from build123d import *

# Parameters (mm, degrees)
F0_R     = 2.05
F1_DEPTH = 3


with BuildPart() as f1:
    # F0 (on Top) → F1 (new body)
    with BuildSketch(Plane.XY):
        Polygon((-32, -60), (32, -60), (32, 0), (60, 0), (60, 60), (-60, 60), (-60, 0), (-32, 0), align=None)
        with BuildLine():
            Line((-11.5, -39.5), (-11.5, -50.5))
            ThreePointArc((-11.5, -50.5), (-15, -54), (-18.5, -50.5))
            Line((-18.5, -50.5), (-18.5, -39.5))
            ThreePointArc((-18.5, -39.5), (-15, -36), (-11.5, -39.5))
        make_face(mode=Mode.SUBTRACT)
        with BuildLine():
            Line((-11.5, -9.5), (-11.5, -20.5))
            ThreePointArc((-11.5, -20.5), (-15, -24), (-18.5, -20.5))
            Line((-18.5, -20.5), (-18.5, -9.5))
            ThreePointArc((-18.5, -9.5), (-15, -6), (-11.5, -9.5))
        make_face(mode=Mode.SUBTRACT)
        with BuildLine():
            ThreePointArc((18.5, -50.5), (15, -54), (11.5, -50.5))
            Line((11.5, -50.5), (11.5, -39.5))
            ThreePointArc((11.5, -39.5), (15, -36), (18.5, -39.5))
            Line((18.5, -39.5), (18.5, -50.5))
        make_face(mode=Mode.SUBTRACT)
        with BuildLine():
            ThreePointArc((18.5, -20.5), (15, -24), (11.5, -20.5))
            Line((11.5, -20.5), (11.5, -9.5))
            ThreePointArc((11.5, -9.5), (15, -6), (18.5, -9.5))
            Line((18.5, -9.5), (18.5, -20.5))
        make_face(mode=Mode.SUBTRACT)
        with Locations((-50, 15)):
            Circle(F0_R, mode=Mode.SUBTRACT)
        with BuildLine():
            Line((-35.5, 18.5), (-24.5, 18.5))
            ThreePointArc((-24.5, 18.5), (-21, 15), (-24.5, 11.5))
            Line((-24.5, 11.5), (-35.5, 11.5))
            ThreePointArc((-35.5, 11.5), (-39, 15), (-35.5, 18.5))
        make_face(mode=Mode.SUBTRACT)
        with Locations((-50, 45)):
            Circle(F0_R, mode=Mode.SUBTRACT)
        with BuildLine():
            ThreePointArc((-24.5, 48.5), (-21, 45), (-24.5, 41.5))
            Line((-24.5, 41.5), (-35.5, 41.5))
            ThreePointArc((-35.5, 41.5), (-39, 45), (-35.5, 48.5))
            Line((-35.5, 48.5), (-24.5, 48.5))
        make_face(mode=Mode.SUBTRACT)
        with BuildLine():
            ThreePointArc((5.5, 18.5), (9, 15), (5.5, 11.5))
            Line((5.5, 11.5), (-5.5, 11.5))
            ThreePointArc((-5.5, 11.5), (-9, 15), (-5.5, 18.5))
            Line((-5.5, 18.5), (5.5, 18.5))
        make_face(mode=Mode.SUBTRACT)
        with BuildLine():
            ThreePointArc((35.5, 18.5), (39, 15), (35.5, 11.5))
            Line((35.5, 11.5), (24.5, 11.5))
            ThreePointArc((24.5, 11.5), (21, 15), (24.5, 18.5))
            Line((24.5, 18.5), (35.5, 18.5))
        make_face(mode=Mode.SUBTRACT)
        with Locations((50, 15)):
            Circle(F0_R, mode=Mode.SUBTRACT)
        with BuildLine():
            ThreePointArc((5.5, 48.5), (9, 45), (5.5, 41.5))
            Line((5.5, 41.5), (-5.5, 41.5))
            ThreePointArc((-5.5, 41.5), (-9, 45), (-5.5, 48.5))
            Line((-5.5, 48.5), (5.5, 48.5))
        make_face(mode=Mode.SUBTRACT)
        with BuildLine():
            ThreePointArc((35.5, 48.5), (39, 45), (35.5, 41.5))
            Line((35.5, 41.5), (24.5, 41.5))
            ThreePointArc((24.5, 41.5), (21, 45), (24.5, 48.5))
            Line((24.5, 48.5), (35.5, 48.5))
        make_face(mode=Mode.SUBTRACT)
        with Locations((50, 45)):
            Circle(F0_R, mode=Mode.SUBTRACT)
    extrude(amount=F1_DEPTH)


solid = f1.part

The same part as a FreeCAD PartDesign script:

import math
import FreeCAD as App
import Part
import Sketcher


def add_polygon(sketch, points):
    """Adds a closed chain of lines whose ends are joined by coincident constraints."""
    first, n = sketch.GeometryCount, len(points)
    for a, b in zip(points, points[1:] + points[:1]):
        sketch.addGeometry(Part.LineSegment(App.Vector(*a, 0), App.Vector(*b, 0)), False)
    for i in range(n):
        sketch.addConstraint(Sketcher.Constraint("Coincident", first + i, 2, first + (i + 1) % n, 1))

doc = App.newDocument("Part")
body = doc.addObject("PartDesign::Body", "Body")

sketch1 = body.newObject("Sketcher::SketchObject", "Sketch")
sketch1.AttachmentSupport = (doc.getObject("XY_Plane"), [""])
sketch1.MapMode = "FlatFace"
add_polygon(sketch1, [(-32, -60), (32, -60), (32, 0), (60, 0), (60, 60), (-60, 60), (-60, 0), (-32, 0)])
sketch1.addGeometry(Part.ArcOfCircle(Part.Circle(App.Vector(-15, -39.5, 0), App.Vector(0, 0, 1), 3.5), math.radians(0), math.radians(180)), False)
sketch1.addGeometry(Part.LineSegment(App.Vector(-11.5, -39.5, 0), App.Vector(-11.5, -50.5, 0)), False)
sketch1.addGeometry(Part.ArcOfCircle(Part.Circle(App.Vector(-15, -50.5, 0), App.Vector(0, 0, 1), 3.5), math.radians(180), math.radians(360)), False)
sketch1.addGeometry(Part.LineSegment(App.Vector(-18.5, -50.5, 0), App.Vector(-18.5, -39.5, 0)), False)
sketch1.addGeometry(Part.ArcOfCircle(Part.Circle(App.Vector(-15, -9.5, 0), App.Vector(0, 0, 1), 3.5), math.radians(0), math.radians(180)), False)
sketch1.addGeometry(Part.LineSegment(App.Vector(-11.5, -9.5, 0), App.Vector(-11.5, -20.5, 0)), False)
sketch1.addGeometry(Part.ArcOfCircle(Part.Circle(App.Vector(-15, -20.5, 0), App.Vector(0, 0, 1), 3.5), math.radians(180), math.radians(360)), False)
sketch1.addGeometry(Part.LineSegment(App.Vector(-18.5, -20.5, 0), App.Vector(-18.5, -9.5, 0)), False)
sketch1.addGeometry(Part.LineSegment(App.Vector(18.5, -39.5, 0), App.Vector(18.5, -50.5, 0)), False)
sketch1.addGeometry(Part.ArcOfCircle(Part.Circle(App.Vector(15, -50.5, 0), App.Vector(0, 0, 1), 3.5), math.radians(180), math.radians(360)), False)
sketch1.addGeometry(Part.LineSegment(App.Vector(11.5, -50.5, 0), App.Vector(11.5, -39.5, 0)), False)
sketch1.addGeometry(Part.ArcOfCircle(Part.Circle(App.Vector(15, -39.5, 0), App.Vector(0, 0, 1), 3.5), math.radians(0), math.radians(180)), False)
sketch1.addGeometry(Part.LineSegment(App.Vector(18.5, -9.5, 0), App.Vector(18.5, -20.5, 0)), False)
sketch1.addGeometry(Part.ArcOfCircle(Part.Circle(App.Vector(15, -20.5, 0), App.Vector(0, 0, 1), 3.5), math.radians(180), math.radians(360)), False)
sketch1.addGeometry(Part.LineSegment(App.Vector(11.5, -20.5, 0), App.Vector(11.5, -9.5, 0)), False)
sketch1.addGeometry(Part.ArcOfCircle(Part.Circle(App.Vector(15, -9.5, 0), App.Vector(0, 0, 1), 3.5), math.radians(0), math.radians(180)), False)
sketch1.addGeometry(Part.Circle(App.Vector(-50, 15, 0), App.Vector(0, 0, 1), 2), False)
sketch1.addGeometry(Part.ArcOfCircle(Part.Circle(App.Vector(-35.5, 15, 0), App.Vector(0, 0, 1), 3.5), math.radians(90), math.radians(270)), False)
sketch1.addGeometry(Part.LineSegment(App.Vector(-35.5, 18.5, 0), App.Vector(-24.5, 18.5, 0)), False)
sketch1.addGeometry(Part.ArcOfCircle(Part.Circle(App.Vector(-24.5, 15, 0), App.Vector(0, 0, 1), 3.5), math.radians(-90), math.radians(90)), False)
sketch1.addGeometry(Part.LineSegment(App.Vector(-24.5, 11.5, 0), App.Vector(-35.5, 11.5, 0)), False)
sketch1.addGeometry(Part.Circle(App.Vector(-50, 45, 0), App.Vector(0, 0, 1), 2), False)
sketch1.addGeometry(Part.LineSegment(App.Vector(-35.5, 48.5, 0), App.Vector(-24.5, 48.5, 0)), False)
sketch1.addGeometry(Part.ArcOfCircle(Part.Circle(App.Vector(-24.5, 45, 0), App.Vector(0, 0, 1), 3.5), math.radians(-90), math.radians(90)), False)
sketch1.addGeometry(Part.LineSegment(App.Vector(-24.5, 41.5, 0), App.Vector(-35.5, 41.5, 0)), False)
sketch1.addGeometry(Part.ArcOfCircle(Part.Circle(App.Vector(-35.5, 45, 0), App.Vector(0, 0, 1), 3.5), math.radians(90), math.radians(270)), False)
sketch1.addGeometry(Part.LineSegment(App.Vector(-5.5, 18.5, 0), App.Vector(5.5, 18.5, 0)), False)
sketch1.addGeometry(Part.ArcOfCircle(Part.Circle(App.Vector(5.5, 15, 0), App.Vector(0, 0, 1), 3.5), math.radians(-90), math.radians(90)), False)
sketch1.addGeometry(Part.LineSegment(App.Vector(5.5, 11.5, 0), App.Vector(-5.5, 11.5, 0)), False)
sketch1.addGeometry(Part.ArcOfCircle(Part.Circle(App.Vector(-5.5, 15, 0), App.Vector(0, 0, 1), 3.5), math.radians(90), math.radians(270)), False)
sketch1.addGeometry(Part.LineSegment(App.Vector(24.5, 18.5, 0), App.Vector(35.5, 18.5, 0)), False)
sketch1.addGeometry(Part.ArcOfCircle(Part.Circle(App.Vector(35.5, 15, 0), App.Vector(0, 0, 1), 3.5), math.radians(-90), math.radians(90)), False)
sketch1.addGeometry(Part.LineSegment(App.Vector(35.5, 11.5, 0), App.Vector(24.5, 11.5, 0)), False)
sketch1.addGeometry(Part.ArcOfCircle(Part.Circle(App.Vector(24.5, 15, 0), App.Vector(0, 0, 1), 3.5), math.radians(90), math.radians(270)), False)
sketch1.addGeometry(Part.Circle(App.Vector(50, 15, 0), App.Vector(0, 0, 1), 2), False)
sketch1.addGeometry(Part.LineSegment(App.Vector(-5.5, 48.5, 0), App.Vector(5.5, 48.5, 0)), False)
sketch1.addGeometry(Part.ArcOfCircle(Part.Circle(App.Vector(5.5, 45, 0), App.Vector(0, 0, 1), 3.5), math.radians(-90), math.radians(90)), False)
sketch1.addGeometry(Part.LineSegment(App.Vector(5.5, 41.5, 0), App.Vector(-5.5, 41.5, 0)), False)
sketch1.addGeometry(Part.ArcOfCircle(Part.Circle(App.Vector(-5.5, 45, 0), App.Vector(0, 0, 1), 3.5), math.radians(90), math.radians(270)), False)
sketch1.addGeometry(Part.LineSegment(App.Vector(24.5, 48.5, 0), App.Vector(35.5, 48.5, 0)), False)
sketch1.addGeometry(Part.ArcOfCircle(Part.Circle(App.Vector(35.5, 45, 0), App.Vector(0, 0, 1), 3.5), math.radians(-90), math.radians(90)), False)
sketch1.addGeometry(Part.LineSegment(App.Vector(35.5, 41.5, 0), App.Vector(24.5, 41.5, 0)), False)
sketch1.addGeometry(Part.ArcOfCircle(Part.Circle(App.Vector(24.5, 45, 0), App.Vector(0, 0, 1), 3.5), math.radians(90), math.radians(270)), False)
sketch1.addGeometry(Part.Circle(App.Vector(50, 45, 0), App.Vector(0, 0, 1), 2), False)
sketch1.addConstraint([
    Sketcher.Constraint("Tangent", 8, 1, 9, 1),
    Sketcher.Constraint("Tangent", 9, 2, 10, 2),
    Sketcher.Constraint("Tangent", 10, 1, 11, 1),
    Sketcher.Constraint("Tangent", 11, 2, 8, 2),
    Sketcher.Constraint("Tangent", 12, 1, 13, 1),
    Sketcher.Constraint("Tangent", 13, 2, 14, 2),
    Sketcher.Constraint("Tangent", 14, 1, 15, 1),
    Sketcher.Constraint("Tangent", 15, 2, 12, 2),
    Sketcher.Constraint("Tangent", 16, 2, 17, 2),
    Sketcher.Constraint("Tangent", 17, 1, 18, 1),
    Sketcher.Constraint("Tangent", 18, 2, 19, 2),
    Sketcher.Constraint("Tangent", 19, 1, 16, 1),
    Sketcher.Constraint("Tangent", 20, 2, 21, 2),
    Sketcher.Constraint("Tangent", 21, 1, 22, 1),
    Sketcher.Constraint("Tangent", 22, 2, 23, 2),
    Sketcher.Constraint("Tangent", 23, 1, 20, 1),
    Sketcher.Constraint("Tangent", 25, 1, 26, 1),
    Sketcher.Constraint("Tangent", 26, 2, 27, 2),
    Sketcher.Constraint("Tangent", 27, 1, 28, 1),
    Sketcher.Constraint("Tangent", 28, 2, 25, 2),
    Sketcher.Constraint("Tangent", 30, 2, 31, 2),
    Sketcher.Constraint("Tangent", 31, 1, 32, 1),
    Sketcher.Constraint("Tangent", 32, 2, 33, 2),
    Sketcher.Constraint("Tangent", 33, 1, 30, 1),
    Sketcher.Constraint("Tangent", 34, 2, 35, 2),
    Sketcher.Constraint("Tangent", 35, 1, 36, 1),
    Sketcher.Constraint("Tangent", 36, 2, 37, 2),
    Sketcher.Constraint("Tangent", 37, 1, 34, 1),
    Sketcher.Constraint("Tangent", 38, 2, 39, 2),
    Sketcher.Constraint("Tangent", 39, 1, 40, 1),
    Sketcher.Constraint("Tangent", 40, 2, 41, 2),
    Sketcher.Constraint("Tangent", 41, 1, 38, 1),
    Sketcher.Constraint("Tangent", 43, 2, 44, 2),
    Sketcher.Constraint("Tangent", 44, 1, 45, 1),
    Sketcher.Constraint("Tangent", 45, 2, 46, 2),
    Sketcher.Constraint("Tangent", 46, 1, 43, 1),
    Sketcher.Constraint("Tangent", 47, 2, 48, 2),
    Sketcher.Constraint("Tangent", 48, 1, 49, 1),
    Sketcher.Constraint("Tangent", 49, 2, 50, 2),
    Sketcher.Constraint("Tangent", 50, 1, 47, 1),
    Sketcher.Constraint("Horizontal", 0),
    Sketcher.Constraint("Vertical", 1),
    Sketcher.Constraint("Horizontal", 2),
    Sketcher.Constraint("Vertical", 3),
    Sketcher.Constraint("Horizontal", 4),
    Sketcher.Constraint("Vertical", 5),
    Sketcher.Constraint("Horizontal", 6),
    Sketcher.Constraint("Vertical", 7),
    Sketcher.Constraint("Vertical", 9),
    Sketcher.Constraint("Vertical", 11),
    Sketcher.Constraint("Vertical", 13),
    Sketcher.Constraint("Vertical", 15),
    Sketcher.Constraint("Vertical", 16),
    Sketcher.Constraint("Vertical", 18),
    Sketcher.Constraint("Vertical", 20),
    Sketcher.Constraint("Vertical", 22),
    Sketcher.Constraint("Horizontal", 26),
    Sketcher.Constraint("Horizontal", 28),
    Sketcher.Constraint("Horizontal", 30),
    Sketcher.Constraint("Horizontal", 32),
    Sketcher.Constraint("Horizontal", 34),
    Sketcher.Constraint("Horizontal", 36),
    Sketcher.Constraint("Horizontal", 38),
    Sketcher.Constraint("Horizontal", 40),
    Sketcher.Constraint("Horizontal", 43),
    Sketcher.Constraint("Horizontal", 45),
    Sketcher.Constraint("Horizontal", 47),
    Sketcher.Constraint("Horizontal", 49),
    Sketcher.Constraint("Equal", 10, 12),
    Sketcher.Constraint("Equal", 14, 17),
    Sketcher.Constraint("Equal", 19, 21),
    Sketcher.Constraint("Equal", 23, 25),
    Sketcher.Constraint("Equal", 24, 29),
    Sketcher.Constraint("Equal", 27, 31),
    Sketcher.Constraint("Equal", 33, 35),
    Sketcher.Constraint("Equal", 37, 39),
    Sketcher.Constraint("Equal", 29, 42),
    Sketcher.Constraint("Equal", 41, 44),
    Sketcher.Constraint("Equal", 46, 48),
    Sketcher.Constraint("Equal", 42, 51),
    Sketcher.Constraint("Symmetric", 2, 2, 5, 2, -1, 1),
    Sketcher.Constraint("Symmetric", 10, 3, 17, 3, -2),
    Sketcher.Constraint("Symmetric", 14, 3, 21, 3, -2),
    Sketcher.Constraint("Symmetric", 25, 3, 39, 3, -2),
    Sketcher.Constraint("Symmetric", 24, 3, 42, 3, -2),
    Sketcher.Constraint("Symmetric", 33, 3, 48, 3, -2),
    Sketcher.Constraint("Symmetric", 29, 3, 51, 3, -2),
    Sketcher.Constraint("Symmetric", 1, 2, 6, 2, -2),
    Sketcher.Constraint("Horizontal", 8, 3, 19, 3),
    Sketcher.Constraint("Horizontal", 12, 3, 23, 3),
    Sketcher.Constraint("Horizontal", 24, 3, 25, 3),
    Sketcher.Constraint("Horizontal", 29, 3, 31, 3),
    Sketcher.Constraint("Horizontal", 27, 3, 35, 3),
    Sketcher.Constraint("Horizontal", 33, 3, 44, 3),
    Sketcher.Constraint("Vertical", 10, 3, 12, 3),
    Sketcher.Constraint("Vertical", 24, 3, 29, 3),
    Sketcher.Constraint("Vertical", 27, 3, 31, 3),
    Sketcher.Constraint("Vertical", 25, 3, 33, 3),
    Sketcher.Constraint("Vertical", 35, 3, 44, 3),
    Sketcher.Constraint("Vertical", 37, 3, 46, 3),
    Sketcher.Constraint("Vertical", 41, 3, 50, 3),
    Sketcher.Constraint("Equal", 32, 34),
    Sketcher.Constraint("Equal", 36, 38),
    Sketcher.Constraint("Equal", 1, 3),
    Sketcher.Constraint("Equal", 49, 9),
    Sketcher.Constraint("Equal", 11, 13),
    Sketcher.Constraint("Diameter", 24, 4.1),
    Sketcher.Constraint("Radius", 8, 3.5),
    Sketcher.Constraint("DistanceX", 0, 1, 0, 2, 64.0),
    Sketcher.Constraint("DistanceX", 2, 1, 2, 2, 28.0),
    Sketcher.Constraint("DistanceX", 26, 1, 26, 2, 11.0),
    Sketcher.Constraint("DistanceY", 1, 1, 1, 2, 60.0),
    Sketcher.Constraint("DistanceX", 8, 3, -1, 1, 15.0),
    Sketcher.Constraint("DistanceX", 24, 3, -1, 1, 50.0),
    Sketcher.Constraint("DistanceY", -1, 1, 24, 3, 15.0),
    Sketcher.Constraint("DistanceY", -1, 1, 29, 3, 45.0),
    Sketcher.Constraint("DistanceY", 8, 3, -1, 1, 39.5),
    Sketcher.Constraint("DistanceY", 12, 3, -1, 1, 9.5),
    Sketcher.Constraint("DistanceX", 25, 3, -1, 1, 35.5),
    Sketcher.Constraint("DistanceX", -1, 1, 35, 3, 5.5),
])
pad1 = body.newObject("PartDesign::Pad", "Pad")
pad1.Profile = sketch1
pad1.Length = 3

doc.recompute()
